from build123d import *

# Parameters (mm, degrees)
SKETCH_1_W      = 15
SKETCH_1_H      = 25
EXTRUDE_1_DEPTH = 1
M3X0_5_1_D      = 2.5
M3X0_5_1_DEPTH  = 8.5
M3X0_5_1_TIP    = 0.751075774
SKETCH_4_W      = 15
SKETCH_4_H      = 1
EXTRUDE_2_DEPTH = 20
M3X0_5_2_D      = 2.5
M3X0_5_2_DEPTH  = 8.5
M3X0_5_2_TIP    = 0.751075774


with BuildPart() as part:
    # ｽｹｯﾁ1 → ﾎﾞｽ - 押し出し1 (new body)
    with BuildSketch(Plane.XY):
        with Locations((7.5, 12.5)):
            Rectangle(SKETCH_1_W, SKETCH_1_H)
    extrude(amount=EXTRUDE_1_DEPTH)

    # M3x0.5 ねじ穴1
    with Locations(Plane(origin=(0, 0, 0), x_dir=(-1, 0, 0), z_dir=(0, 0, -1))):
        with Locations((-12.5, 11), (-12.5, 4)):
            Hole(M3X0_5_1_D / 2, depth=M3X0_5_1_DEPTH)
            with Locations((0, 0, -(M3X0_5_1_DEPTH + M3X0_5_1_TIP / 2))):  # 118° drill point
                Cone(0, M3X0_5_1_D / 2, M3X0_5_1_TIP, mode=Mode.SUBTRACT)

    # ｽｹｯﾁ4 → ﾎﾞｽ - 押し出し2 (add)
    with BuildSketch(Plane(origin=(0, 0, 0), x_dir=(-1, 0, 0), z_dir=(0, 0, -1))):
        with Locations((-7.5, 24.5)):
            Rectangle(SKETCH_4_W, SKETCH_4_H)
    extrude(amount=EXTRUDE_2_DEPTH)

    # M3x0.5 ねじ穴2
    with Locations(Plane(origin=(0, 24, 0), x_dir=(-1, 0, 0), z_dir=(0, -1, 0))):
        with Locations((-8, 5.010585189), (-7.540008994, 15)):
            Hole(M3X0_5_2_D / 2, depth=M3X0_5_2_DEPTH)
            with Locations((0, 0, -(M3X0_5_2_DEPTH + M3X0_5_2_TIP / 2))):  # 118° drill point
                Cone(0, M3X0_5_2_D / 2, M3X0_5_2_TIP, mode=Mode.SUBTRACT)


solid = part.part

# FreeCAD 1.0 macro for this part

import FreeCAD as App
import Part
import Sketcher
Q = App.Units.Quantity

doc = App.newDocument("Part")
body = doc.addObject("PartDesign::Body", "Body")

# Sketch on XY plane
sketch1 = body.newObject("Sketcher::SketchObject", "Sketch")
sketch1.AttachmentSupport = (doc.getObject("XY_Plane"), [""])
sketch1.MapMode = "FlatFace"
sketch1.addGeometry([
    Part.LineSegment(App.Vector(0, 25, 0), App.Vector(0, 0, 0)),
    Part.LineSegment(App.Vector(0, 0, 0), App.Vector(15, 0, 0)),
    Part.LineSegment(App.Vector(15, 0, 0), App.Vector(15, 25, 0)),
    Part.LineSegment(App.Vector(15, 25, 0), App.Vector(0, 25, 0)),
], False)
sketch1.addConstraint([
    Sketcher.Constraint("Coincident", 0, 2, 1, 1),
    Sketcher.Constraint("Coincident", 1, 2, 2, 1),
    Sketcher.Constraint("Coincident", 2, 2, 3, 1),
    Sketcher.Constraint("Coincident", 3, 2, 0, 1),
    Sketcher.Constraint("Vertical", 0),
    Sketcher.Constraint("Horizontal", 1),
    Sketcher.Constraint("Vertical", 2),
    Sketcher.Constraint("Horizontal", 3),
    Sketcher.Constraint("Coincident", 0, 2, -1, 1),
    Sketcher.Constraint("DistanceX", 1, 1, 1, 2, Q("15 mm")),
    Sketcher.Constraint("DistanceY", 0, 2, 0, 1, Q("25 mm")),
])
pad1 = body.newObject("PartDesign::Pad", "Pad")
pad1.Profile = sketch1
pad1.Length = 1

# Sketch on XY plane
sketch2 = body.newObject("Sketcher::SketchObject", "Sketch001")
sketch2.AttachmentSupport = (doc.getObject("XY_Plane"), [""])
sketch2.MapMode = "FlatFace"
sketch2.addGeometry([
    Part.Circle(App.Vector(12.5, 11, 0), App.Vector(0, 0, 1), 1.2),
    Part.Circle(App.Vector(12.5, 4, 0), App.Vector(0, 0, 1), 1.2),
], False)
sketch2.addConstraint([
    Sketcher.Constraint("Equal", 0, 1),
    Sketcher.Constraint("Vertical", 0, 3, 1, 3),
    Sketcher.Constraint("Diameter", 0, Q("2.5 mm")),
    Sketcher.Constraint("DistanceY", -1, 1, 0, 3, Q("11 mm")),
    Sketcher.Constraint("DistanceY", -1, 1, 1, 3, Q("4 mm")),
    Sketcher.Constraint("DistanceX", -1, 1, 0, 3, Q("12.5 mm")),
])
doc.recompute()
hole = body.newObject("PartDesign::Hole", "Hole")
hole.Profile = sketch2
hole.ThreadType = "None"
hole.Diameter = 2.5
hole.DepthType = "Dimension"
hole.Depth = 8.5
hole.DrillPoint = "Angled"
hole.DrillPointAngle = 118
hole.Reversed = True

# Sketch on XY plane
sketch3 = body.newObject("Sketcher::SketchObject", "Sketch002")
sketch3.AttachmentSupport = (doc.getObject("XY_Plane"), [""])
sketch3.MapMode = "FlatFace"
sketch3.addGeometry([
    Part.LineSegment(App.Vector(15, 25, 0), App.Vector(15, 24, 0)),
    Part.LineSegment(App.Vector(15, 24, 0), App.Vector(0, 24, 0)),
    Part.LineSegment(App.Vector(0, 24, 0), App.Vector(0, 25, 0)),
    Part.LineSegment(App.Vector(0, 25, 0), App.Vector(15, 25, 0)),
], False)
sketch3.addConstraint([
    Sketcher.Constraint("Coincident", 0, 2, 1, 1),
    Sketcher.Constraint("Coincident", 1, 2, 2, 1),
    Sketcher.Constraint("Coincident", 2, 2, 3, 1),
    Sketcher.Constraint("Coincident", 3, 2, 0, 1),
    Sketcher.Constraint("Vertical", 0),
    Sketcher.Constraint("Horizontal", 1),
    Sketcher.Constraint("Vertical", 2),
    Sketcher.Constraint("Horizontal", 3),
    Sketcher.Constraint("PointOnObject", 1, 2, -2),
    Sketcher.Constraint("DistanceX", 1, 2, 1, 1, Q("15 mm")),
    Sketcher.Constraint("DistanceY", 0, 2, 0, 1, Q("1 mm")),
    Sketcher.Constraint("DistanceY", -1, 1, 0, 2, Q("24 mm")),
])
pad2 = body.newObject("PartDesign::Pad", "Pad001")
pad2.Profile = sketch3
pad2.Length = 20
pad2.Reversed = True

# Sketch on XZ plane
sketch4 = body.newObject("Sketcher::SketchObject", "Sketch003")
sketch4.AttachmentSupport = (doc.getObject("XZ_Plane"), [""])
sketch4.MapMode = "FlatFace"
sketch4.AttachmentOffset = App.Placement(App.Vector(0, 0, -24), App.Rotation())
sketch4.addGeometry([
    Part.Circle(App.Vector(8, -5, 0), App.Vector(0, 0, 1), 1.2),
    Part.Circle(App.Vector(7.5, -15, 0), App.Vector(0, 0, 1), 1.2),
], False)
sketch4.addConstraint([
    Sketcher.Constraint("Equal", 0, 1),
    Sketcher.Constraint("Diameter", 0, Q("2.5 mm")),
    Sketcher.Constraint("DistanceX", -1, 1, 0, 3, Q("8 mm")),
    Sketcher.Constraint("DistanceY", 1, 3, -1, 1, Q("15 mm")),
    Sketcher.Constraint("DistanceX", -1, 1, 1, 3, Q("7.540009 mm")),
    Sketcher.Constraint("DistanceY", 0, 3, -1, 1, Q("5.010585 mm")),
])
doc.recompute()
hole2 = body.newObject("PartDesign::Hole", "Hole001")
hole2.Profile = sketch4
hole2.ThreadType = "None"
hole2.Diameter = 2.5
hole2.DepthType = "Dimension"
hole2.Depth = 8.5
hole2.DrillPoint = "Angled"
hole2.DrillPointAngle = 118

doc.recompute()
